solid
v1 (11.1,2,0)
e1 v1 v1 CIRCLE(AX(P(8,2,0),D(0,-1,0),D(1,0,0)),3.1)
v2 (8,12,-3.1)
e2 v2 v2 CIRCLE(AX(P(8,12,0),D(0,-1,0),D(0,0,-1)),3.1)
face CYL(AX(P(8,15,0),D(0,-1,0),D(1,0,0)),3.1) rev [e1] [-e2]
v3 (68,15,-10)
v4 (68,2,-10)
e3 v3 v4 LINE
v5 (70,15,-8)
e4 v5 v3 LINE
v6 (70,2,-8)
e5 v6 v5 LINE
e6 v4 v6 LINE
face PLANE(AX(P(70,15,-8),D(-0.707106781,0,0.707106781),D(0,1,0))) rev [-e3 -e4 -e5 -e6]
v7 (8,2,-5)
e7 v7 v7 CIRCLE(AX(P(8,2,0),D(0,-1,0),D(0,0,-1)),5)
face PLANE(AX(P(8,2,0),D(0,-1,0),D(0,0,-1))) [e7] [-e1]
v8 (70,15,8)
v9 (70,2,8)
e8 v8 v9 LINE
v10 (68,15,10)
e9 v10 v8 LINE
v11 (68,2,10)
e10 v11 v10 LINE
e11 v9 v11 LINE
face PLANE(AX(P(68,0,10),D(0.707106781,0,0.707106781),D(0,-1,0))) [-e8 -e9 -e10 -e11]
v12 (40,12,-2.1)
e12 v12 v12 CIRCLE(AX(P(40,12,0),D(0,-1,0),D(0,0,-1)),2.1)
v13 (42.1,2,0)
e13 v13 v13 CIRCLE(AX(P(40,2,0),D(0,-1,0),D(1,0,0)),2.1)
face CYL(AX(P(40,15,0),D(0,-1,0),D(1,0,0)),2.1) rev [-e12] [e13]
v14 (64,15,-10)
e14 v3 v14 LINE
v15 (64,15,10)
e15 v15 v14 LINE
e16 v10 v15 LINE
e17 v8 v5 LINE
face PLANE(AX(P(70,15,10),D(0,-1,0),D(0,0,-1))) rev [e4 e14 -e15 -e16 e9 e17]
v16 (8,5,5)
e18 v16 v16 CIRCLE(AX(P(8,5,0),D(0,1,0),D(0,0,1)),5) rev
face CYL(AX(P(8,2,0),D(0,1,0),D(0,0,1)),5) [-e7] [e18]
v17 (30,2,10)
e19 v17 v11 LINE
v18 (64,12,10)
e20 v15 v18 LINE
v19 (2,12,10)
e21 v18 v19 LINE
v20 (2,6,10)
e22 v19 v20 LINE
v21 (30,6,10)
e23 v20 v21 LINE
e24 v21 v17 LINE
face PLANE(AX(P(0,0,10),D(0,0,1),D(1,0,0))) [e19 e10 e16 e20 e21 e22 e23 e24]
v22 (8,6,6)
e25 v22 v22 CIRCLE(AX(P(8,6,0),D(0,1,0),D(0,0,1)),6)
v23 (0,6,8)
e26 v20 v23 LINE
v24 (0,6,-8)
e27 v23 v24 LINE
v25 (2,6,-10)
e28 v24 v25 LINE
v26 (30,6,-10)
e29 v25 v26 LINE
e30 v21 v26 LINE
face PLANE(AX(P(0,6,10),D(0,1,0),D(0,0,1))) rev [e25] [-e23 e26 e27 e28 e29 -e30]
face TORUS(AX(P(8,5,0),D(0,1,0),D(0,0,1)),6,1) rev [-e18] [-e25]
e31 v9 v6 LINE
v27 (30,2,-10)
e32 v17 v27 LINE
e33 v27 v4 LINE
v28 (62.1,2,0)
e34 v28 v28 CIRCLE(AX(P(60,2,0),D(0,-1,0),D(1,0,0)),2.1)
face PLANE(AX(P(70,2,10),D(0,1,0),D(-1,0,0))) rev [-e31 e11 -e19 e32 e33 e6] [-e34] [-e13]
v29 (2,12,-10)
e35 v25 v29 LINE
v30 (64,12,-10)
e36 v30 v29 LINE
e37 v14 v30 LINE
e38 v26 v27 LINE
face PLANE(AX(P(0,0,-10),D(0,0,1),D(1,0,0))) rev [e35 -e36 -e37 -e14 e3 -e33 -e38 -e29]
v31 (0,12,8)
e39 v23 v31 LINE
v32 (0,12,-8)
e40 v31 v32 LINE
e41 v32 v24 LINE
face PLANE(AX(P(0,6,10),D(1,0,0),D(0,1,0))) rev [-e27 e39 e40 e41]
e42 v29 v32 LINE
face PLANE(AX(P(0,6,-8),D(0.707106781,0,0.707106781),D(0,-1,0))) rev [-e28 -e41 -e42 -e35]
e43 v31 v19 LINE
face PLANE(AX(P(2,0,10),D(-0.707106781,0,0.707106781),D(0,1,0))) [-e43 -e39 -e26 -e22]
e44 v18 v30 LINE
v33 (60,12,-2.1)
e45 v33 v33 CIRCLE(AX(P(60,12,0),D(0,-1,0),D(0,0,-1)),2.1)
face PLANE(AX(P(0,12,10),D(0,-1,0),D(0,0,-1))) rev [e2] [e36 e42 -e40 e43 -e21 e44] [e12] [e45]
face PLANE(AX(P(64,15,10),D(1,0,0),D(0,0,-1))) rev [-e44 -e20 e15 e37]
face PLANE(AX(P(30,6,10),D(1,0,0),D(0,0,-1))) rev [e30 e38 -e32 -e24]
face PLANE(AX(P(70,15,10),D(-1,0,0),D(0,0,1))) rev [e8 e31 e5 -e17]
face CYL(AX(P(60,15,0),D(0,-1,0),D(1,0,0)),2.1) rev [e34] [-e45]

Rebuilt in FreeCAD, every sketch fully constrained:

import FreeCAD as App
import Part
import Sketcher
from FreeCAD import Vector


def edges_at(feature, points):
    """Names of the edges that pass closest to the given points."""
    edges = feature.Shape.Edges
    near = lambda p: min(range(len(edges)), key=lambda i: edges[i].distToShape(Part.Vertex(*p))[0])
    return sorted({f"Edge{near(p) + 1}" for p in points})

doc = App.newDocument("Part")
body = doc.addObject("PartDesign::Body", "Body")

sketch1 = body.newObject("Sketcher::SketchObject", "Sketch")
sketch1.AttachmentSupport = (doc.getObject("XY_Plane"), [""])
sketch1.MapMode = "FlatFace"
sketch1.addGeometry(Part.LineSegment(Vector(0, 12, 0), Vector(0, 6, 0)), False)
sketch1.addGeometry(Part.LineSegment(Vector(0, 6, 0), Vector(30, 6, 0)), False)
sketch1.addGeometry(Part.LineSegment(Vector(30, 6, 0), Vector(30, 2, 0)), False)
sketch1.addGeometry(Part.LineSegment(Vector(30, 2, 0), Vector(70, 2, 0)), False)
sketch1.addGeometry(Part.LineSegment(Vector(70, 2, 0), Vector(70, 15, 0)), False)
sketch1.addGeometry(Part.LineSegment(Vector(70, 15, 0), Vector(64, 15, 0)), False)
sketch1.addGeometry(Part.LineSegment(Vector(64, 15, 0), Vector(64, 12, 0)), False)
sketch1.addGeometry(Part.LineSegment(Vector(64, 12, 0), Vector(0, 12, 0)), False)
sketch1.addConstraint(Sketcher.Constraint("Coincident", 0, 2, 1, 1))
sketch1.addConstraint(Sketcher.Constraint("Coincident", 1, 2, 2, 1))
sketch1.addConstraint(Sketcher.Constraint("Coincident", 2, 2, 3, 1))
sketch1.addConstraint(Sketcher.Constraint("Coincident", 3, 2, 4, 1))
sketch1.addConstraint(Sketcher.Constraint("Coincident", 4, 2, 5, 1))
sketch1.addConstraint(Sketcher.Constraint("Coincident", 5, 2, 6, 1))
sketch1.addConstraint(Sketcher.Constraint("Coincident", 6, 2, 7, 1))
sketch1.addConstraint(Sketcher.Constraint("Coincident", 7, 2, 0, 1))
sketch1.addConstraint(Sketcher.Constraint("Vertical", 0))
sketch1.addConstraint(Sketcher.Constraint("Horizontal", 1))
sketch1.addConstraint(Sketcher.Constraint("Vertical", 2))
sketch1.addConstraint(Sketcher.Constraint("Horizontal", 3))
sketch1.addConstraint(Sketcher.Constraint("Vertical", 4))
sketch1.addConstraint(Sketcher.Constraint("Horizontal", 5))
sketch1.addConstraint(Sketcher.Constraint("Vertical", 6))
sketch1.addConstraint(Sketcher.Constraint("Horizontal", 7))
sketch1.addConstraint(Sketcher.Constraint("PointOnObject", 0, 2, -2))
sketch1.addConstraint(Sketcher.Constraint("Equal", 5, 0))
sketch1.addConstraint(Sketcher.Constraint("DistanceX", 1, 1, 1, 2, 30.0))
sketch1.addConstraint(Sketcher.Constraint("DistanceX", 3, 1, 3, 2, 40.0))
sketch1.addConstraint(Sketcher.Constraint("DistanceX", 5, 2, 5, 1, 6.0))
sketch1.addConstraint(Sketcher.Constraint("DistanceY", 2, 2, 2, 1, 4.0))
sketch1.addConstraint(Sketcher.Constraint("DistanceY", 4, 1, 4, 2, 13.0))
sketch1.addConstraint(Sketcher.Constraint("DistanceY", -1, 1, 0, 2, 6.0))
pad1 = body.newObject("PartDesign::Pad", "Pad")
pad1.Profile = sketch1
pad1.Length = 20
pad1.Midplane = True

sketch2 = body.newObject("Sketcher::SketchObject", "Sketch001")
sketch2.AttachmentSupport = (doc.getObject("XZ_Plane"), [""])
sketch2.MapMode = "FlatFace"
sketch2.AttachmentOffset = App.Placement(Vector(0, 0, -6), App.Rotation())
sketch2.addGeometry(Part.Circle(Vector(8, 0, 0), Vector(0, 0, 1), 5), False)
sketch2.addConstraint(Sketcher.Constraint("PointOnObject", 0, 3, -1))
sketch2.addConstraint(Sketcher.Constraint("Diameter", 0, 10.0))
sketch2.addConstraint(Sketcher.Constraint("DistanceX", -1, 1, 0, 3, 8.0))
pad2 = body.newObject("PartDesign::Pad", "Pad001")
pad2.Profile = sketch2
pad2.Length = 4
doc.recompute()

chamfer = body.newObject("PartDesign::Chamfer", "Chamfer")
chamfer.Base = (pad2, edges_at(pad2, [(0, 9, -10), (0, 9, 10)]))
chamfer.Size = 2
doc.recompute()

chamfer2 = body.newObject("PartDesign::Chamfer", "Chamfer001")
chamfer2.Base = (chamfer, edges_at(chamfer, [(70, 8.5, 10), (70, 8.5, -10)]))
chamfer2.Size = 2

sketch3 = body.newObject("Sketcher::SketchObject", "Sketch002")
sketch3.AttachmentSupport = (doc.getObject("XZ_Plane"), [""])
sketch3.MapMode = "FlatFace"
sketch3.AttachmentOffset = App.Placement(Vector(0, 0, -2), App.Rotation())
sketch3.addGeometry(Part.Circle(Vector(40, 0, 0), Vector(0, 0, 1), 2.1), False)
sketch3.addGeometry(Part.Circle(Vector(60, 0, 0), Vector(0, 0, 1), 2.1), False)
sketch3.addGeometry(Part.Circle(Vector(8, 0, 0), Vector(0, 0, 1), 3.1), False)
sketch3.addConstraint(Sketcher.Constraint("Equal", 0, 1))
sketch3.addConstraint(Sketcher.Constraint("PointOnObject", 0, 3, -1))
sketch3.addConstraint(Sketcher.Constraint("PointOnObject", 1, 3, -1))
sketch3.addConstraint(Sketcher.Constraint("PointOnObject", 2, 3, -1))
sketch3.addConstraint(Sketcher.Constraint("Diameter", 0, 4.2))
sketch3.addConstraint(Sketcher.Constraint("Diameter", 2, 6.2))
sketch3.addConstraint(Sketcher.Constraint("DistanceX", -1, 1, 0, 3, 40.0))
sketch3.addConstraint(Sketcher.Constraint("DistanceX", -1, 1, 1, 3, 60.0))
sketch3.addConstraint(Sketcher.Constraint("DistanceX", -1, 1, 2, 3, 8.0))
pocket1 = body.newObject("PartDesign::Pocket", "Pocket")
pocket1.Profile = sketch3
pocket1.Type = "ThroughAll"
doc.recompute()

fillet = body.newObject("PartDesign::Fillet", "Fillet")
fillet.Base = (pocket1, edges_at(pocket1, [(8, 6, -5)]))
fillet.Radius = 1

doc.recompute()
